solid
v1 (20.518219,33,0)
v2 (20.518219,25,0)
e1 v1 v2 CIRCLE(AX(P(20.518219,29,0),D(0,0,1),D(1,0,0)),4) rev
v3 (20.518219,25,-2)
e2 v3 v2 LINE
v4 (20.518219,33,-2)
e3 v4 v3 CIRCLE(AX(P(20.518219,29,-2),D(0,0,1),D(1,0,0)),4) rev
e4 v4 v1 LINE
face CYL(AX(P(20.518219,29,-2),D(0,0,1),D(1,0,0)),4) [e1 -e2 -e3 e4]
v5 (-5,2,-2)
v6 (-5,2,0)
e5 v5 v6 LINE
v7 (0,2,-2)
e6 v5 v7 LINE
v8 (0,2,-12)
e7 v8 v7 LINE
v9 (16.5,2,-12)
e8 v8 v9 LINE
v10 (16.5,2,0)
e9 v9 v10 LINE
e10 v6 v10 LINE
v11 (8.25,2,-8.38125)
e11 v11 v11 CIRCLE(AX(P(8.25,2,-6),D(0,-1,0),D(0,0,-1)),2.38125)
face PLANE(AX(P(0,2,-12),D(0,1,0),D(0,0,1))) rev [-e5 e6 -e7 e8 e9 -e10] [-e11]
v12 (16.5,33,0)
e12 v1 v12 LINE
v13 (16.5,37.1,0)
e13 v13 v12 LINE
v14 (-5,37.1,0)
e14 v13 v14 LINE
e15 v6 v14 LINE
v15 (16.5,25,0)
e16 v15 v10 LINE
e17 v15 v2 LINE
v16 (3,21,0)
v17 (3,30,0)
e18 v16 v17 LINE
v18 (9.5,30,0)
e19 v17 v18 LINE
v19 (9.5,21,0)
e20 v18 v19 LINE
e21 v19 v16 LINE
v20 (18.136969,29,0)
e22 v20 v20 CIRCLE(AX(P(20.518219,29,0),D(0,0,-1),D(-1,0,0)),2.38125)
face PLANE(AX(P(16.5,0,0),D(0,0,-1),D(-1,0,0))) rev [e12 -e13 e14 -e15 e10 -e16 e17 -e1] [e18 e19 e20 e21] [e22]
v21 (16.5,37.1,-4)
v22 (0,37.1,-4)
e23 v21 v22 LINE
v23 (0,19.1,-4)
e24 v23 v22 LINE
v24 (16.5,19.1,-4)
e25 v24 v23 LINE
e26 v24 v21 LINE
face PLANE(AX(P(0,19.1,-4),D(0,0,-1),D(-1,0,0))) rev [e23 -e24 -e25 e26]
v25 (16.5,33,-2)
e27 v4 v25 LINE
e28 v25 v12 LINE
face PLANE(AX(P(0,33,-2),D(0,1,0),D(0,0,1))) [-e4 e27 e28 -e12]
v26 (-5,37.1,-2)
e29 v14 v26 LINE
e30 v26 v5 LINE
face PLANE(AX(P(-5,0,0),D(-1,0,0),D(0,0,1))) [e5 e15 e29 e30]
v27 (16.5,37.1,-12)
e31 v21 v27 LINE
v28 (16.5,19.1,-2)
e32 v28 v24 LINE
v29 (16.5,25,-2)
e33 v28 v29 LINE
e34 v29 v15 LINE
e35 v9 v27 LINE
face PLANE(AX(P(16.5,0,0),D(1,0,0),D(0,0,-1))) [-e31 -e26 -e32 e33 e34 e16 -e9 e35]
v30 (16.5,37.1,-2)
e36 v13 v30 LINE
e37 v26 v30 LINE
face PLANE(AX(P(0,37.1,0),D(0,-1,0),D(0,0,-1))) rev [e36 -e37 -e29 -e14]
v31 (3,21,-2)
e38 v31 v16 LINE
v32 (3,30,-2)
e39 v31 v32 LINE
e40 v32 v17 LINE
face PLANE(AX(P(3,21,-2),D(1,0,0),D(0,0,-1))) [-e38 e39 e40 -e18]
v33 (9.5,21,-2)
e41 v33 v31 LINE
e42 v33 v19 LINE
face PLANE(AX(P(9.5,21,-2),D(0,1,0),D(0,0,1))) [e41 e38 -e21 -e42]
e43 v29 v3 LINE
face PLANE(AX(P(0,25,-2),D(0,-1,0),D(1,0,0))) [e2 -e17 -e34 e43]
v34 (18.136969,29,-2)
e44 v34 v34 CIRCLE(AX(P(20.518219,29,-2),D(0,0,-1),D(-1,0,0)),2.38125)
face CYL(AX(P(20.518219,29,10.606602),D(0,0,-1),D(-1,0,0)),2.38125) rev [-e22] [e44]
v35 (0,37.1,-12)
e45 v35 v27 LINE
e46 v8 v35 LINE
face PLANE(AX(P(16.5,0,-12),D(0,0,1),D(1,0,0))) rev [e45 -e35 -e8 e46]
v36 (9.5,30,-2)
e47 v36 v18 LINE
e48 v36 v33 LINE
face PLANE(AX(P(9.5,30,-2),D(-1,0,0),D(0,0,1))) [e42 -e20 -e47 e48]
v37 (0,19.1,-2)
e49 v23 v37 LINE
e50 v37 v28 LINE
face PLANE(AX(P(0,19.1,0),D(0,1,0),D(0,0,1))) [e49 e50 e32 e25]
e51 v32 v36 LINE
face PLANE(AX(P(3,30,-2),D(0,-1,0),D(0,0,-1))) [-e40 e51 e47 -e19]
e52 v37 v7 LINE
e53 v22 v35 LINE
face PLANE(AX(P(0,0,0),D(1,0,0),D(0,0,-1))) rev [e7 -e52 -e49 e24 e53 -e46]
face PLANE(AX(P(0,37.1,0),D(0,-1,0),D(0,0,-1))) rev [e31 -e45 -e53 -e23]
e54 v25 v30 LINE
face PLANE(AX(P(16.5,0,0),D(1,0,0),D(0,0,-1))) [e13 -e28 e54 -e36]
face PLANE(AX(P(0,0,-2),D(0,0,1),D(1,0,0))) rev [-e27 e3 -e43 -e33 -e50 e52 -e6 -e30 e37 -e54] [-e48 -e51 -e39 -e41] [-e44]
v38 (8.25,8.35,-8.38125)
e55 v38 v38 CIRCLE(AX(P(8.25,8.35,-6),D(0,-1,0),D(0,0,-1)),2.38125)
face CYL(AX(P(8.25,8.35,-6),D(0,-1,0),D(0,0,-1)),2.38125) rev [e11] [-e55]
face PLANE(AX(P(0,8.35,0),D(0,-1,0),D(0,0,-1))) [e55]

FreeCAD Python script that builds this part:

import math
import FreeCAD as App
import Part
import Sketcher
Q = App.Units.Quantity


def add_polygon(sketch, points):
    """Adds a closed chain of lines whose ends are joined by coincident constraints."""
    first, n = sketch.GeometryCount, len(points)
    for a, b in zip(points, points[1:] + points[:1]):
        sketch.addGeometry(Part.LineSegment(App.Vector(*a, 0), App.Vector(*b, 0)), False)
    for i in range(n):
        sketch.addConstraint(Sketcher.Constraint("Coincident", first + i, 2, first + (i + 1) % n, 1))

doc = App.newDocument("Part")
body = doc.addObject("PartDesign::Body", "Body")

sketch1 = doc.addObject("Sketcher::SketchObject", "Sketch")
body.addObject(sketch1)
sketch1.AttachmentSupport = (doc.YZ_Plane, [""])
sketch1.MapMode = "FlatFace"
add_polygon(sketch1, [(37, 0), (0, 0), (0, -12), (48, -12), (48, 11)])
sketch1.addConstraint(Sketcher.Constraint("Horizontal", 0))
sketch1.addConstraint(Sketcher.Constraint("Vertical", 1))
sketch1.addConstraint(Sketcher.Constraint("Horizontal", 2))
sketch1.addConstraint(Sketcher.Constraint("Vertical", 3))
sketch1.addConstraint(Sketcher.Constraint("Coincident", 0, 2, -1, 1))
sketch1.addConstraint(Sketcher.Constraint("DistanceY", 1, 2, 1, 1, 12.0))
sketch1.addConstraint(Sketcher.Constraint("Angle", 4, Q("-135 deg")))
sketch1.addConstraint(Sketcher.Constraint("Distance", 4, 15.0))
sketch1.addConstraint(Sketcher.Constraint("DistanceX", 0, 2, 0, 1, 37.1))
pad1 = doc.addObject("PartDesign::Pad", "Pad")
body.addObject(pad1)
pad1.Profile = sketch1
pad1.Length = 16.5

sketch2 = doc.addObject("Sketcher::SketchObject", "Sketch001")
body.addObject(sketch2)
sketch2.AttachmentSupport = (doc.YZ_Plane, [""])
sketch2.MapMode = "FlatFace"
add_polygon(sketch2, [(48, 0), (37, 0), (48, 11)])
sketch2.addConstraint(Sketcher.Constraint("Horizontal", 0))
sketch2.addConstraint(Sketcher.Constraint("Vertical", 2))
sketch2.addConstraint(Sketcher.Constraint("PointOnObject", 0, 2, -1))
sketch2.addConstraint(Sketcher.Constraint("Equal", 0, 2))
sketch2.addConstraint(Sketcher.Constraint("Distance", 1, 15.0))
sketch2.addConstraint(Sketcher.Constraint("DistanceX", -1, 1, 0, 2, 37.1))
pocket1 = doc.addObject("PartDesign::Pocket", "Pocket")
body.addObject(pocket1)
pocket1.Profile = sketch2
pocket1.Length = 1.5
pocket1.Reversed = True

sketch3 = doc.addObject("Sketcher::SketchObject", "Sketch002")
body.addObject(sketch3)
sketch3.AttachmentSupport = (doc.YZ_Plane, [""])
sketch3.MapMode = "FlatFace"
sketch3.AttachmentOffset = App.Placement(App.Vector(0, 0, 16.5), App.Rotation())
add_polygon(sketch3, [(40, 2.9), (41, 1.8), (39.2, 0), (42.8, 0), (45.4, 2.7), (43.7, 4.5), (42.3, 3), (41.2, 4.1)])
sketch3.addConstraint(Sketcher.Constraint("Horizontal", 2))
sketch3.addConstraint(Sketcher.Constraint("PointOnObject", 1, 2, -1))
sketch3.addConstraint(Sketcher.Constraint("Perpendicular", 0, 1))
sketch3.addConstraint(Sketcher.Constraint("Parallel", 1, 3))
sketch3.addConstraint(Sketcher.Constraint("Perpendicular", 3, 4))
sketch3.addConstraint(Sketcher.Constraint("Perpendicular", 4, 5))
sketch3.addConstraint(Sketcher.Constraint("Perpendicular", 5, 6))
sketch3.addConstraint(Sketcher.Constraint("Perpendicular", 6, 7))
sketch3.addConstraint(Sketcher.Constraint("Equal", 0, 6))
sketch3.addConstraint(Sketcher.Constraint("Angle", 0, Q("-45 deg")))
sketch3.addConstraint(Sketcher.Constraint("Distance", 5, 2.0))
sketch3.addConstraint(Sketcher.Constraint("Distance", 0, 1.5))
sketch3.addConstraint(Sketcher.Constraint("Distance", 4, 2.5))
sketch3.addConstraint(Sketcher.Constraint("Distance", 7, 1.75))
sketch3.addConstraint(Sketcher.Constraint("DistanceX", 2, 2, 4, 2, 0.915302))
sketch3.addConstraint(Sketcher.Constraint("DistanceX", -1, 1, 1, 2, 39.22132))
pocket2 = doc.addObject("PartDesign::Pocket", "Pocket001")
body.addObject(pocket2)
pocket2.Profile = sketch3
pocket2.Type = "ThroughAll"

sketch4 = doc.addObject("Sketcher::SketchObject", "Sketch003")
body.addObject(sketch4)
sketch4.AttachmentSupport = (doc.YZ_Plane, [""])
sketch4.MapMode = "FlatFace"
sketch4.AttachmentOffset = App.Placement(App.Vector(0, 0, 16.5), App.Rotation())
add_polygon(sketch4, [(2, 0), (0, 0), (0, -12), (2, -12)])
sketch4.addConstraint(Sketcher.Constraint("Horizontal", 0))
sketch4.addConstraint(Sketcher.Constraint("Vertical", 1))
sketch4.addConstraint(Sketcher.Constraint("Horizontal", 2))
sketch4.addConstraint(Sketcher.Constraint("Vertical", 3))
sketch4.addConstraint(Sketcher.Constraint("Coincident", 0, 2, -1, 1))
sketch4.addConstraint(Sketcher.Constraint("DistanceX", 0, 2, 0, 1, 2.0))
sketch4.addConstraint(Sketcher.Constraint("DistanceY", 1, 2, 1, 1, 12.0))
pocket3 = doc.addObject("PartDesign::Pocket", "Pocket002")
body.addObject(pocket3)
pocket3.Profile = sketch4
pocket3.Type = "ThroughAll"

sketch5 = doc.addObject("Sketcher::SketchObject", "Sketch004")
body.addObject(sketch5)
sketch5.AttachmentSupport = (doc.XY_Plane, [""])
sketch5.MapMode = "FlatFace"
sketch5.addGeometry(Part.LineSegment(App.Vector(16.5, 25, 0), App.Vector(20.5, 25, 0)), False)
sketch5.addGeometry(Part.ArcOfCircle(Part.Circle(App.Vector(20.5, 29, 0), App.Vector(0, 0, 1), 4), math.radians(-90), math.radians(90)), False)
sketch5.addGeometry(Part.LineSegment(App.Vector(20.5, 33, 0), App.Vector(16.5, 33, 0)), False)
sketch5.addGeometry(Part.LineSegment(App.Vector(16.5, 33, 0), App.Vector(16.5, 25, 0)), False)
sketch5.addConstraint(Sketcher.Constraint("Tangent", 0, 2, 1, 1))
sketch5.addConstraint(Sketcher.Constraint("Tangent", 1, 2, 2, 1))
sketch5.addConstraint(Sketcher.Constraint("Coincident", 2, 2, 3, 1))
sketch5.addConstraint(Sketcher.Constraint("Coincident", 3, 2, 0, 1))
sketch5.addConstraint(Sketcher.Constraint("Horizontal", 0))
sketch5.addConstraint(Sketcher.Constraint("Horizontal", 2))
sketch5.addConstraint(Sketcher.Constraint("Vertical", 3))
sketch5.addConstraint(Sketcher.Constraint("Radius", 1, 4.0))
sketch5.addConstraint(Sketcher.Constraint("DistanceY", -1, 1, 1, 3, 29.0))
sketch5.addConstraint(Sketcher.Constraint("DistanceX", -1, 1, 2, 2, 16.5))
sketch5.addConstraint(Sketcher.Constraint("DistanceX", 0, 1, 0, 2, 4.018219))
pad2 = doc.addObject("PartDesign::Pad", "Pad001")
body.addObject(pad2)
pad2.Profile = sketch5
pad2.Length = 2
pad2.Reversed = True

sketch6 = doc.addObject("Sketcher::SketchObject", "Sketch005")
body.addObject(sketch6)
sketch6.AttachmentSupport = (doc.XY_Plane, [""])
sketch6.MapMode = "FlatFace"
sketch6.AttachmentOffset = App.Placement(App.Vector(0, 0, -2), App.Rotation())
sketch6.addGeometry(Part.Circle(App.Vector(20.5, 29, 0), App.Vector(0, 0, 1), 2.4), False)
sketch6.addConstraint(Sketcher.Constraint("DistanceY", -1, 1, 0, 3, 29.0))
sketch6.addConstraint(Sketcher.Constraint("Diameter", 0, 4.7625))
sketch6.addConstraint(Sketcher.Constraint("DistanceX", -1, 1, 0, 3, 20.518219))
pocket4 = doc.addObject("PartDesign::Pocket", "Pocket003")
body.addObject(pocket4)
pocket4.Profile = sketch6
pocket4.Type = "ThroughAll"
pocket4.Reversed = True

sketch7 = doc.addObject("Sketcher::SketchObject", "Sketch006")
body.addObject(sketch7)
sketch7.AttachmentSupport = (doc.YZ_Plane, [""])
sketch7.MapMode = "FlatFace"
sketch7.AttachmentOffset = App.Placement(App.Vector(0, 0, 16.5), App.Rotation())
add_polygon(sketch7, [(48, 11), (37, 0), (37, -12), (48, -12)])
sketch7.addConstraint(Sketcher.Constraint("Vertical", 1))
sketch7.addConstraint(Sketcher.Constraint("Horizontal", 2))
sketch7.addConstraint(Sketcher.Constraint("Vertical", 3))
sketch7.addConstraint(Sketcher.Constraint("PointOnObject", 0, 2, -1))
sketch7.addConstraint(Sketcher.Constraint("DistanceY", 1, 2, 1, 1, 12.0))
sketch7.addConstraint(Sketcher.Constraint("Angle", 0, Q("-135 deg")))
sketch7.addConstraint(Sketcher.Constraint("Distance", 0, 15.0))
sketch7.addConstraint(Sketcher.Constraint("DistanceX", -1, 1, 0, 2, 37.1))
pocket5 = doc.addObject("PartDesign::Pocket", "Pocket004")
body.addObject(pocket5)
pocket5.Profile = sketch7
pocket5.Type = "ThroughAll"

sketch8 = doc.addObject("Sketcher::SketchObject", "Sketch007")
body.addObject(sketch8)
sketch8.AttachmentSupport = (doc.XZ_Plane, [""])
sketch8.MapMode = "FlatFace"
sketch8.AttachmentOffset = App.Placement(App.Vector(0, 0, -2), App.Rotation())
sketch8.addGeometry(Part.Circle(App.Vector(8.2, -6, 0), App.Vector(0, 0, 1), 2.4), False)
sketch8.addConstraint(Sketcher.Constraint("DistanceY", 0, 3, -1, 1, 6.0))
sketch8.addConstraint(Sketcher.Constraint("Diameter", 0, 4.7625))
sketch8.addConstraint(Sketcher.Constraint("DistanceX", -1, 1, 0, 3, 8.25))
pocket6 = doc.addObject("PartDesign::Pocket", "Pocket005")
body.addObject(pocket6)
pocket6.Profile = sketch8
pocket6.Length = 6.35

sketch9 = doc.addObject("Sketcher::SketchObject", "Sketch008")
body.addObject(sketch9)
sketch9.AttachmentSupport = (doc.XY_Plane, [""])
sketch9.MapMode = "FlatFace"
add_polygon(sketch9, [(3, 30), (3, 21), (10, 21), (10, 30)])
sketch9.addConstraint(Sketcher.Constraint("Vertical", 0))
sketch9.addConstraint(Sketcher.Constraint("Horizontal", 1))
sketch9.addConstraint(Sketcher.Constraint("Vertical", 2))
sketch9.addConstraint(Sketcher.Constraint("Horizontal", 3))
sketch9.addConstraint(Sketcher.Constraint("DistanceY", 0, 2, 0, 1, 9.0))
sketch9.addConstraint(Sketcher.Constraint("DistanceX", 1, 1, 1, 2, 6.5))
sketch9.addConstraint(Sketcher.Constraint("DistanceX", -1, 1, 0, 2, 3.0))
sketch9.addConstraint(Sketcher.Constraint("DistanceY", -1, 1, 0, 2, 21.0))
pocket7 = doc.addObject("PartDesign::Pocket", "Pocket006")
body.addObject(pocket7)
pocket7.Profile = sketch9
pocket7.Length = 2

sketch10 = doc.addObject("Sketcher::SketchObject", "Sketch009")
body.addObject(sketch10)
sketch10.AttachmentSupport = (doc.XZ_Plane, [""])
sketch10.MapMode = "FlatFace"
sketch10.AttachmentOffset = App.Placement(App.Vector(0, 0, -37.1), App.Rotation())
add_polygon(sketch10, [(0, -4), (0, -2), (16.5, -2), (16.5, -4)])
sketch10.addConstraint(Sketcher.Constraint("Vertical", 0))
sketch10.addConstraint(Sketcher.Constraint("Horizontal", 1))
sketch10.addConstraint(Sketcher.Constraint("Vertical", 2))
sketch10.addConstraint(Sketcher.Constraint("Horizontal", 3))
sketch10.addConstraint(Sketcher.Constraint("PointOnObject", 0, 2, -2))
sketch10.addConstraint(Sketcher.Constraint("DistanceY", 0, 1, 0, 2, 2.0))
sketch10.addConstraint(Sketcher.Constraint("DistanceX", 1, 1, 1, 2, 16.5))
sketch10.addConstraint(Sketcher.Constraint("DistanceY", 0, 2, -1, 1, 2.0))
pocket8 = doc.addObject("PartDesign::Pocket", "Pocket007")
body.addObject(pocket8)
pocket8.Profile = sketch10
pocket8.Length = 18
pocket8.Reversed = True

sketch11 = doc.addObject("Sketcher::SketchObject", "Sketch010")
body.addObject(sketch11)
sketch11.AttachmentSupport = (doc.YZ_Plane, [""])
sketch11.MapMode = "FlatFace"
add_polygon(sketch11, [(37.1, -2), (2, -2), (2, 0), (37.1, 0)])
sketch11.addConstraint(Sketcher.Constraint("Horizontal", 0))
sketch11.addConstraint(Sketcher.Constraint("Vertical", 1))
sketch11.addConstraint(Sketcher.Constraint("Horizontal", 2))
sketch11.addConstraint(Sketcher.Constraint("Vertical", 3))
sketch11.addConstraint(Sketcher.Constraint("PointOnObject", 1, 2, -1))
sketch11.addConstraint(Sketcher.Constraint("DistanceY", 1, 1, 1, 2, 2.0))
sketch11.addConstraint(Sketcher.Constraint("DistanceX", 0, 2, 0, 1, 35.1))
sketch11.addConstraint(Sketcher.Constraint("DistanceX", -1, 1, 0, 2, 2.0))
pad3 = doc.addObject("PartDesign::Pad", "Pad002")
body.addObject(pad3)
pad3.Profile = sketch11
pad3.Length = 5
pad3.Reversed = True

doc.recompute()
